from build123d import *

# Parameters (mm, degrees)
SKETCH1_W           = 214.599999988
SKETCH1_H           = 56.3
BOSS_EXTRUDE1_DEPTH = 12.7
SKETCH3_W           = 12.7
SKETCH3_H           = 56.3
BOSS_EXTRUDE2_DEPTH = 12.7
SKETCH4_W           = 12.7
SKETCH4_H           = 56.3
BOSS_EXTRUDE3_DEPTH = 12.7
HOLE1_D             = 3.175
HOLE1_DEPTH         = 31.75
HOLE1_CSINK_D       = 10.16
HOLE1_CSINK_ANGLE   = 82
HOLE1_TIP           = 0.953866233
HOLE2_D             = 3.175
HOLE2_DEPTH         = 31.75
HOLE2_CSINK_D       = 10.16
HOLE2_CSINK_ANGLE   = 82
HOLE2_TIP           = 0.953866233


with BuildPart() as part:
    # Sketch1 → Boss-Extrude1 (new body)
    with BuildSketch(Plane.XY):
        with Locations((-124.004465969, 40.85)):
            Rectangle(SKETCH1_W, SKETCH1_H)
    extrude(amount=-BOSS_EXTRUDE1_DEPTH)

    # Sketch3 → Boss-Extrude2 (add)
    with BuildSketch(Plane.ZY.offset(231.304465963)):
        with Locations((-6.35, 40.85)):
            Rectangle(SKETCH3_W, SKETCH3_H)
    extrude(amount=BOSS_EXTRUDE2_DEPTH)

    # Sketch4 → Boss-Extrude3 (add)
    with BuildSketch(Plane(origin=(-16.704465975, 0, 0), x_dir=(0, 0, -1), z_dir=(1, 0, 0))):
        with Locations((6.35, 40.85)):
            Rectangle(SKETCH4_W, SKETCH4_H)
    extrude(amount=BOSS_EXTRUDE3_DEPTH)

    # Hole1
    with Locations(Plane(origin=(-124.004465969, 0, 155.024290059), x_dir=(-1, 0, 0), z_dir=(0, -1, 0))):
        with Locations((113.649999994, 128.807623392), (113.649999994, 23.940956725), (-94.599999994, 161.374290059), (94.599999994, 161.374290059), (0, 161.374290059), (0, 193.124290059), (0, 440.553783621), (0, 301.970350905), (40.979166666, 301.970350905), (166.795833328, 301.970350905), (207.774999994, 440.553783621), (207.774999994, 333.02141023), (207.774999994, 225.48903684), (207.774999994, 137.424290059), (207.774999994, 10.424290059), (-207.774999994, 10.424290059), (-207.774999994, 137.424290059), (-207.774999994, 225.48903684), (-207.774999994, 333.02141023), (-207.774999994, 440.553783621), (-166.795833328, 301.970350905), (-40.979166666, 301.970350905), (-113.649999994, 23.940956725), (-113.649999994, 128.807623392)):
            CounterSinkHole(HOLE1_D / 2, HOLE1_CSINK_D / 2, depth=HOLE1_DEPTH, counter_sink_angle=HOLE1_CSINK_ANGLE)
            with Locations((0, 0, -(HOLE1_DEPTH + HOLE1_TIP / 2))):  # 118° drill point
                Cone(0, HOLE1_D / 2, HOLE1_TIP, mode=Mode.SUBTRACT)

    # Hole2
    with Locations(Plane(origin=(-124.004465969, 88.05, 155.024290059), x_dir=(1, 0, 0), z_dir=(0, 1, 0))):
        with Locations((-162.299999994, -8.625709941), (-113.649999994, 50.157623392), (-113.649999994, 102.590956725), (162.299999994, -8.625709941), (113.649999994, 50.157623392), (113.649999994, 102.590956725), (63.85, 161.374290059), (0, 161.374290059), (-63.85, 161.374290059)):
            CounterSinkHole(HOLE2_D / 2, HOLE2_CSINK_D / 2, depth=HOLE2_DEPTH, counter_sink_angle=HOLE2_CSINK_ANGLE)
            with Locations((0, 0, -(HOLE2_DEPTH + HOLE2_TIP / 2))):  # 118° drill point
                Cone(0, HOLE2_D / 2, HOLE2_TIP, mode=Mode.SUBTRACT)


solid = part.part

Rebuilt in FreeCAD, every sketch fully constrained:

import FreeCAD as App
import Part
import Sketcher
Q = App.Units.Quantity

doc = App.newDocument("Part")
body = doc.addObject("PartDesign::Body", "Body")

sketch1 = body.newObject("Sketcher::SketchObject", "Sketch")
sketch1.AttachmentSupport = (doc.getObject("XY_Plane"), [""])
sketch1.MapMode = "FlatFace"
sketch1.addGeometry(Part.LineSegment(App.Vector(-231, 69, 0), App.Vector(-231, 13, 0)), False)
sketch1.addGeometry(Part.LineSegment(App.Vector(-231, 13, 0), App.Vector(-17, 13, 0)), False)
sketch1.addGeometry(Part.LineSegment(App.Vector(-17, 13, 0), App.Vector(-17, 69, 0)), False)
sketch1.addGeometry(Part.LineSegment(App.Vector(-17, 69, 0), App.Vector(-231, 69, 0)), False)
sketch1.addConstraint(Sketcher.Constraint("Coincident", 0, 2, 1, 1))
sketch1.addConstraint(Sketcher.Constraint("Coincident", 1, 2, 2, 1))
sketch1.addConstraint(Sketcher.Constraint("Coincident", 2, 2, 3, 1))
sketch1.addConstraint(Sketcher.Constraint("Coincident", 3, 2, 0, 1))
sketch1.addConstraint(Sketcher.Constraint("Vertical", 0))
sketch1.addConstraint(Sketcher.Constraint("Horizontal", 1))
sketch1.addConstraint(Sketcher.Constraint("Vertical", 2))
sketch1.addConstraint(Sketcher.Constraint("Horizontal", 3))
sketch1.addConstraint(Sketcher.Constraint("DistanceY", -1, 1, 0, 2, Q("0.5 in")))
sketch1.addConstraint(Sketcher.Constraint("DistanceX", 1, 1, 1, 2, 214.6))
sketch1.addConstraint(Sketcher.Constraint("DistanceY", 0, 2, 0, 1, 56.3))
sketch1.addConstraint(Sketcher.Constraint("DistanceX", 0, 2, -1, 1, 231.304466))
pad1 = body.newObject("PartDesign::Pad", "Pad")
pad1.Profile = sketch1
pad1.Length = Q("0.5 in")
pad1.Reversed = True

sketch2 = body.newObject("Sketcher::SketchObject", "Sketch001")
sketch2.AttachmentSupport = (doc.getObject("YZ_Plane"), [""])
sketch2.MapMode = "FlatFace"
sketch2.AttachmentOffset = App.Placement(App.Vector(0, 0, -231.304466), App.Rotation())
sketch2.addGeometry(Part.LineSegment(App.Vector(69, -13, 0), App.Vector(13, -13, 0)), False)
sketch2.addGeometry(Part.LineSegment(App.Vector(13, -13, 0), App.Vector(13, 0, 0)), False)
sketch2.addGeometry(Part.LineSegment(App.Vector(13, 0, 0), App.Vector(69, 0, 0)), False)
sketch2.addGeometry(Part.LineSegment(App.Vector(69, 0, 0), App.Vector(69, -13, 0)), False)
sketch2.addConstraint(Sketcher.Constraint("Coincident", 0, 2, 1, 1))
sketch2.addConstraint(Sketcher.Constraint("Coincident", 1, 2, 2, 1))
sketch2.addConstraint(Sketcher.Constraint("Coincident", 2, 2, 3, 1))
sketch2.addConstraint(Sketcher.Constraint("Coincident", 3, 2, 0, 1))
sketch2.addConstraint(Sketcher.Constraint("Horizontal", 0))
sketch2.addConstraint(Sketcher.Constraint("Vertical", 1))
sketch2.addConstraint(Sketcher.Constraint("Horizontal", 2))
sketch2.addConstraint(Sketcher.Constraint("Vertical", 3))
sketch2.addConstraint(Sketcher.Constraint("PointOnObject", 1, 2, -1))
sketch2.addConstraint(Sketcher.Constraint("DistanceY", 1, 1, 1, 2, Q("0.5 in")))
sketch2.addConstraint(Sketcher.Constraint("DistanceX", -1, 1, 0, 2, Q("0.5 in")))
sketch2.addConstraint(Sketcher.Constraint("DistanceX", 0, 2, 0, 1, 56.3))
pad2 = body.newObject("PartDesign::Pad", "Pad001")
pad2.Profile = sketch2
pad2.Length = Q("0.5 in")
pad2.Reversed = True

sketch3 = body.newObject("Sketcher::SketchObject", "Sketch002")
sketch3.AttachmentSupport = (doc.getObject("YZ_Plane"), [""])
sketch3.MapMode = "FlatFace"
sketch3.AttachmentOffset = App.Placement(App.Vector(0, 0, -16.704466), App.Rotation())
sketch3.addGeometry(Part.LineSegment(App.Vector(69, 0, 0), App.Vector(13, 0, 0)), False)
sketch3.addGeometry(Part.LineSegment(App.Vector(13, 0, 0), App.Vector(13, -13, 0)), False)
sketch3.addGeometry(Part.LineSegment(App.Vector(13, -13, 0), App.Vector(69, -13, 0)), False)
sketch3.addGeometry(Part.LineSegment(App.Vector(69, -13, 0), App.Vector(69, 0, 0)), False)
sketch3.addConstraint(Sketcher.Constraint("Coincident", 0, 2, 1, 1))
sketch3.addConstraint(Sketcher.Constraint("Coincident", 1, 2, 2, 1))
sketch3.addConstraint(Sketcher.Constraint("Coincident", 2, 2, 3, 1))
sketch3.addConstraint(Sketcher.Constraint("Coincident", 3, 2, 0, 1))
sketch3.addConstraint(Sketcher.Constraint("Horizontal", 0))
sketch3.addConstraint(Sketcher.Constraint("Vertical", 1))
sketch3.addConstraint(Sketcher.Constraint("Horizontal", 2))
sketch3.addConstraint(Sketcher.Constraint("Vertical", 3))
sketch3.addConstraint(Sketcher.Constraint("PointOnObject", 0, 2, -1))
sketch3.addConstraint(Sketcher.Constraint("DistanceY", 1, 2, 1, 1, Q("0.5 in")))
sketch3.addConstraint(Sketcher.Constraint("DistanceX", -1, 1, 0, 2, Q("0.5 in")))
sketch3.addConstraint(Sketcher.Constraint("DistanceX", 0, 2, 0, 1, 56.3))
pad3 = body.newObject("PartDesign::Pad", "Pad002")
pad3.Profile = sketch3
pad3.Length = Q("0.5 in")

sketch4 = body.newObject("Sketcher::SketchObject", "Sketch003")
sketch4.AttachmentSupport = (doc.getObject("XZ_Plane"), [""])
sketch4.MapMode = "FlatFace"
sketch4.addGeometry(Part.Circle(App.Vector(-237.7, 26.2, 0), App.Vector(0, 0, 1), 1.6), False)
sketch4.addGeometry(Part.Circle(App.Vector(-237.7, 131.1, 0), App.Vector(0, 0, 1), 1.6), False)
sketch4.addGeometry(Part.Circle(App.Vector(-29.4, -6.3, 0), App.Vector(0, 0, 1), 1.6), False)
sketch4.addGeometry(Part.Circle(App.Vector(-218.6, -6.3, 0), App.Vector(0, 0, 1), 1.6), False)
sketch4.addGeometry(Part.Circle(App.Vector(-124, -6.3, 0), App.Vector(0, 0, 1), 1.6), False)
sketch4.addGeometry(Part.Circle(App.Vector(-124, -38.1, 0), App.Vector(0, 0, 1), 1.6), False)
sketch4.addGeometry(Part.Circle(App.Vector(-124, -285.5, 0), App.Vector(0, 0, 1), 1.6), False)
sketch4.addGeometry(Part.Circle(App.Vector(-124, -146.9, 0), App.Vector(0, 0, 1), 1.6), False)
sketch4.addGeometry(Part.Circle(App.Vector(-165, -146.9, 0), App.Vector(0, 0, 1), 1.6), False)
sketch4.addGeometry(Part.Circle(App.Vector(-290.8, -146.9, 0), App.Vector(0, 0, 1), 1.6), False)
sketch4.addGeometry(Part.Circle(App.Vector(-331.8, -285.5, 0), App.Vector(0, 0, 1), 1.6), False)
sketch4.addGeometry(Part.Circle(App.Vector(-331.8, -178, 0), App.Vector(0, 0, 1), 1.6), False)
sketch4.addGeometry(Part.Circle(App.Vector(-331.8, -70.5, 0), App.Vector(0, 0, 1), 1.6), False)
sketch4.addGeometry(Part.Circle(App.Vector(-331.8, 17.6, 0), App.Vector(0, 0, 1), 1.6), False)
sketch4.addGeometry(Part.Circle(App.Vector(-331.8, 144.6, 0), App.Vector(0, 0, 1), 1.6), False)
sketch4.addGeometry(Part.Circle(App.Vector(83.8, 144.6, 0), App.Vector(0, 0, 1), 1.6), False)
sketch4.addGeometry(Part.Circle(App.Vector(83.8, 17.6, 0), App.Vector(0, 0, 1), 1.6), False)
sketch4.addGeometry(Part.Circle(App.Vector(83.8, -70.5, 0), App.Vector(0, 0, 1), 1.6), False)
sketch4.addGeometry(Part.Circle(App.Vector(83.8, -178, 0), App.Vector(0, 0, 1), 1.6), False)
sketch4.addGeometry(Part.Circle(App.Vector(83.8, -285.5, 0), App.Vector(0, 0, 1), 1.6), False)
sketch4.addGeometry(Part.Circle(App.Vector(42.8, -146.9, 0), App.Vector(0, 0, 1), 1.6), False)
sketch4.addGeometry(Part.Circle(App.Vector(-83, -146.9, 0), App.Vector(0, 0, 1), 1.6), False)
sketch4.addGeometry(Part.Circle(App.Vector(-10.4, 131.1, 0), App.Vector(0, 0, 1), 1.6), False)
sketch4.addGeometry(Part.Circle(App.Vector(-10.4, 26.2, 0), App.Vector(0, 0, 1), 1.6), False)
sketch4.addConstraint(Sketcher.Constraint("Equal", 0, 1))
sketch4.addConstraint(Sketcher.Constraint("Equal", 1, 2))
sketch4.addConstraint(Sketcher.Constraint("Equal", 2, 3))
sketch4.addConstraint(Sketcher.Constraint("Equal", 3, 4))
sketch4.addConstraint(Sketcher.Constraint("Equal", 4, 5))
sketch4.addConstraint(Sketcher.Constraint("Equal", 5, 6))
sketch4.addConstraint(Sketcher.Constraint("Equal", 6, 7))
sketch4.addConstraint(Sketcher.Constraint("Equal", 7, 8))
sketch4.addConstraint(Sketcher.Constraint("Equal", 8, 9))
sketch4.addConstraint(Sketcher.Constraint("Equal", 9, 10))
sketch4.addConstraint(Sketcher.Constraint("Equal", 10, 11))
sketch4.addConstraint(Sketcher.Constraint("Equal", 11, 12))
sketch4.addConstraint(Sketcher.Constraint("Equal", 12, 13))
sketch4.addConstraint(Sketcher.Constraint("Equal", 13, 14))
sketch4.addConstraint(Sketcher.Constraint("Equal", 14, 15))
sketch4.addConstraint(Sketcher.Constraint("Equal", 15, 16))
sketch4.addConstraint(Sketcher.Constraint("Equal", 16, 17))
sketch4.addConstraint(Sketcher.Constraint("Equal", 17, 18))
sketch4.addConstraint(Sketcher.Constraint("Equal", 18, 19))
sketch4.addConstraint(Sketcher.Constraint("Equal", 19, 20))
sketch4.addConstraint(Sketcher.Constraint("Equal", 20, 21))
sketch4.addConstraint(Sketcher.Constraint("Equal", 21, 22))
sketch4.addConstraint(Sketcher.Constraint("Equal", 22, 23))
sketch4.addConstraint(Sketcher.Constraint("Horizontal", 2, 3, 3, 3))
sketch4.addConstraint(Sketcher.Constraint("Horizontal", 3, 3, 4, 3))
sketch4.addConstraint(Sketcher.Constraint("Horizontal", 7, 3, 8, 3))
sketch4.addConstraint(Sketcher.Constraint("Horizontal", 8, 3, 9, 3))
sketch4.addConstraint(Sketcher.Constraint("Horizontal", 6, 3, 10, 3))
sketch4.addConstraint(Sketcher.Constraint("Horizontal", 14, 3, 15, 3))
sketch4.addConstraint(Sketcher.Constraint("Horizontal", 13, 3, 16, 3))
sketch4.addConstraint(Sketcher.Constraint("Horizontal", 12, 3, 17, 3))
sketch4.addConstraint(Sketcher.Constraint("Horizontal", 11, 3, 18, 3))
sketch4.addConstraint(Sketcher.Constraint("Horizontal", 10, 3, 19, 3))
sketch4.addConstraint(Sketcher.Constraint("Horizontal", 9, 3, 20, 3))
sketch4.addConstraint(Sketcher.Constraint("Horizontal", 20, 3, 21, 3))
sketch4.addConstraint(Sketcher.Constraint("Horizontal", 1, 3, 22, 3))
sketch4.addConstraint(Sketcher.Constraint("Horizontal", 0, 3, 23, 3))
sketch4.addConstraint(Sketcher.Constraint("Vertical", 0, 3, 1, 3))
sketch4.addConstraint(Sketcher.Constraint("Vertical", 4, 3, 5, 3))
sketch4.addConstraint(Sketcher.Constraint("Vertical", 5, 3, 6, 3))
sketch4.addConstraint(Sketcher.Constraint("Vertical", 6, 3, 7, 3))
sketch4.addConstraint(Sketcher.Constraint("Vertical", 10, 3, 11, 3))
sketch4.addConstraint(Sketcher.Constraint("Vertical", 11, 3, 12, 3))
sketch4.addConstraint(Sketcher.Constraint("Vertical", 12, 3, 13, 3))
sketch4.addConstraint(Sketcher.Constraint("Vertical", 13, 3, 14, 3))
sketch4.addConstraint(Sketcher.Constraint("Vertical", 15, 3, 16, 3))
sketch4.addConstraint(Sketcher.Constraint("Vertical", 16, 3, 17, 3))
sketch4.addConstraint(Sketcher.Constraint("Vertical", 17, 3, 18, 3))
sketch4.addConstraint(Sketcher.Constraint("Vertical", 18, 3, 19, 3))
sketch4.addConstraint(Sketcher.Constraint("Vertical", 22, 3, 23, 3))
sketch4.addConstraint(Sketcher.Constraint("Diameter", 0, Q("0.125 in")))
sketch4.addConstraint(Sketcher.Constraint("DistanceY", 13, 3, 14, 3, Q("5 in")))
sketch4.addConstraint(Sketcher.Constraint("DistanceY", 5, 3, -1, 1, Q("1.5 in")))
sketch4.addConstraint(Sketcher.Constraint("DistanceY", 2, 3, -1, 1, Q("0.25 in")))
sketch4.addConstraint(Sketcher.Constraint("DistanceX", 0, 3, 3, 3, Q("0.75 in")))
sketch4.addConstraint(Sketcher.Constraint("DistanceX", 2, 3, 22, 3, Q("0.75 in")))
sketch4.addConstraint(Sketcher.Constraint("DistanceX", 9, 3, -1, 1, 290.800299))
sketch4.addConstraint(Sketcher.Constraint("DistanceY", -1, 1, 13, 3, 17.6))
sketch4.addConstraint(Sketcher.Constraint("DistanceX", 21, 3, -1, 1, 83.025299))
sketch4.addConstraint(Sketcher.Constraint("DistanceX", 0, 3, 2, 3, 208.25))
sketch4.addConstraint(Sketcher.Constraint("DistanceX", 4, 3, 2, 3, 94.6))
sketch4.addConstraint(Sketcher.Constraint("DistanceX", 10, 3, 6, 3, 207.775))
sketch4.addConstraint(Sketcher.Constraint("DistanceX", 2, 3, 15, 3, 113.175))
sketch4.addConstraint(Sketcher.Constraint("DistanceY", 7, 3, -1, 1, 146.946061))
sketch4.addConstraint(Sketcher.Constraint("DistanceY", 11, 3, -1, 1, 177.99712))
sketch4.addConstraint(Sketcher.Constraint("DistanceY", 6, 3, 0, 3, 311.74616))
sketch4.addConstraint(Sketcher.Constraint("DistanceX", 0, 3, -1, 1, 237.654466))
sketch4.addConstraint(Sketcher.Constraint("DistanceY", -1, 1, 0, 3, 26.216667))
sketch4.addConstraint(Sketcher.Constraint("DistanceY", -1, 1, 1, 3, 131.083333))
sketch4.addConstraint(Sketcher.Constraint("DistanceX", 8, 3, -1, 1, 164.983633))
sketch4.addConstraint(Sketcher.Constraint("DistanceY", 12, 3, -1, 1, 70.464747))
sketch4.addConstraint(Sketcher.Constraint("DistanceX", -1, 1, 20, 3, 42.791367))
doc.recompute()
hole = body.newObject("PartDesign::Hole", "Hole")
hole.Profile = sketch4
hole.ThreadType = "None"
hole.Diameter = Q("0.125 in")
hole.DepthType = "Dimension"
hole.Depth = Q("1.25 in")
hole.DrillPoint = "Angled"
hole.DrillPointAngle = 118
hole.HoleCutType = "Countersink"
hole.HoleCutDiameter = Q("0.4 in")
hole.HoleCutCountersinkAngle = 82

sketch5 = body.newObject("Sketcher::SketchObject", "Sketch004")
sketch5.AttachmentSupport = (doc.getObject("XZ_Plane"), [""])
sketch5.MapMode = "FlatFace"
sketch5.AttachmentOffset = App.Placement(App.Vector(0, 0, -88.05), App.Rotation())
sketch5.addGeometry(Part.Circle(App.Vector(-286.3, 163.7, 0), App.Vector(0, 0, 1), 1.6), False)
sketch5.addGeometry(Part.Circle(App.Vector(-237.7, 104.9, 0), App.Vector(0, 0, 1), 1.6), False)
sketch5.addGeometry(Part.Circle(App.Vector(-237.7, 52.4, 0), App.Vector(0, 0, 1), 1.6), False)
sketch5.addGeometry(Part.Circle(App.Vector(38.3, 163.7, 0), App.Vector(0, 0, 1), 1.6), False)
sketch5.addGeometry(Part.Circle(App.Vector(-10.4, 104.9, 0), App.Vector(0, 0, 1), 1.6), False)
sketch5.addGeometry(Part.Circle(App.Vector(-10.4, 52.4, 0), App.Vector(0, 0, 1), 1.6), False)
sketch5.addGeometry(Part.Circle(App.Vector(-60.2, -6.3, 0), App.Vector(0, 0, 1), 1.6), False)
sketch5.addGeometry(Part.Circle(App.Vector(-124, -6.3, 0), App.Vector(0, 0, 1), 1.6), False)
sketch5.addGeometry(Part.Circle(App.Vector(-187.9, -6.3, 0), App.Vector(0, 0, 1), 1.6), False)
sketch5.addConstraint(Sketcher.Constraint("Equal", 0, 1))
sketch5.addConstraint(Sketcher.Constraint("Equal", 1, 2))
sketch5.addConstraint(Sketcher.Constraint("Equal", 2, 3))
sketch5.addConstraint(Sketcher.Constraint("Equal", 3, 4))
sketch5.addConstraint(Sketcher.Constraint("Equal", 4, 5))
sketch5.addConstraint(Sketcher.Constraint("Equal", 5, 6))
sketch5.addConstraint(Sketcher.Constraint("Equal", 6, 7))
sketch5.addConstraint(Sketcher.Constraint("Equal", 7, 8))
sketch5.addConstraint(Sketcher.Constraint("Horizontal", 0, 3, 3, 3))
sketch5.addConstraint(Sketcher.Constraint("Horizontal", 1, 3, 4, 3))
sketch5.addConstraint(Sketcher.Constraint("Horizontal", 2, 3, 5, 3))
sketch5.addConstraint(Sketcher.Constraint("Horizontal", 6, 3, 7, 3))
sketch5.addConstraint(Sketcher.Constraint("Horizontal", 7, 3, 8, 3))
sketch5.addConstraint(Sketcher.Constraint("Vertical", 1, 3, 2, 3))
sketch5.addConstraint(Sketcher.Constraint("Vertical", 4, 3, 5, 3))
sketch5.addConstraint(Sketcher.Constraint("Diameter", 0, Q("0.125 in")))
sketch5.addConstraint(Sketcher.Constraint("DistanceY", 6, 3, -1, 1, Q("0.25 in")))
sketch5.addConstraint(Sketcher.Constraint("DistanceY", -1, 1, 0, 3, 163.65))
sketch5.addConstraint(Sketcher.Constraint("DistanceX", 0, 3, 1, 3, 48.65))
sketch5.addConstraint(Sketcher.Constraint("DistanceX", 1, 3, 3, 3, 275.95))
sketch5.addConstraint(Sketcher.Constraint("DistanceX", 4, 3, 3, 3, 48.65))
sketch5.addConstraint(Sketcher.Constraint("DistanceX", 6, 3, 5, 3, 49.8))
sketch5.addConstraint(Sketcher.Constraint("DistanceX", 7, 3, 6, 3, 63.85))
sketch5.addConstraint(Sketcher.Constraint("DistanceX", 8, 3, 7, 3, 63.85))
sketch5.addConstraint(Sketcher.Constraint("DistanceX", 0, 3, -1, 1, 286.304466))
sketch5.addConstraint(Sketcher.Constraint("DistanceY", -1, 1, 1, 3, 104.866667))
sketch5.addConstraint(Sketcher.Constraint("DistanceY", -1, 1, 2, 3, 52.433333))
doc.recompute()
hole2 = body.newObject("PartDesign::Hole", "Hole001")
hole2.Profile = sketch5
hole2.ThreadType = "None"
hole2.Diameter = Q("0.125 in")
hole2.DepthType = "Dimension"
hole2.Depth = Q("1.25 in")
hole2.DrillPoint = "Angled"
hole2.DrillPointAngle = 118
hole2.HoleCutType = "Countersink"
hole2.HoleCutDiameter = Q("0.4 in")
hole2.HoleCutCountersinkAngle = 82
hole2.Reversed = True

doc.recompute()
